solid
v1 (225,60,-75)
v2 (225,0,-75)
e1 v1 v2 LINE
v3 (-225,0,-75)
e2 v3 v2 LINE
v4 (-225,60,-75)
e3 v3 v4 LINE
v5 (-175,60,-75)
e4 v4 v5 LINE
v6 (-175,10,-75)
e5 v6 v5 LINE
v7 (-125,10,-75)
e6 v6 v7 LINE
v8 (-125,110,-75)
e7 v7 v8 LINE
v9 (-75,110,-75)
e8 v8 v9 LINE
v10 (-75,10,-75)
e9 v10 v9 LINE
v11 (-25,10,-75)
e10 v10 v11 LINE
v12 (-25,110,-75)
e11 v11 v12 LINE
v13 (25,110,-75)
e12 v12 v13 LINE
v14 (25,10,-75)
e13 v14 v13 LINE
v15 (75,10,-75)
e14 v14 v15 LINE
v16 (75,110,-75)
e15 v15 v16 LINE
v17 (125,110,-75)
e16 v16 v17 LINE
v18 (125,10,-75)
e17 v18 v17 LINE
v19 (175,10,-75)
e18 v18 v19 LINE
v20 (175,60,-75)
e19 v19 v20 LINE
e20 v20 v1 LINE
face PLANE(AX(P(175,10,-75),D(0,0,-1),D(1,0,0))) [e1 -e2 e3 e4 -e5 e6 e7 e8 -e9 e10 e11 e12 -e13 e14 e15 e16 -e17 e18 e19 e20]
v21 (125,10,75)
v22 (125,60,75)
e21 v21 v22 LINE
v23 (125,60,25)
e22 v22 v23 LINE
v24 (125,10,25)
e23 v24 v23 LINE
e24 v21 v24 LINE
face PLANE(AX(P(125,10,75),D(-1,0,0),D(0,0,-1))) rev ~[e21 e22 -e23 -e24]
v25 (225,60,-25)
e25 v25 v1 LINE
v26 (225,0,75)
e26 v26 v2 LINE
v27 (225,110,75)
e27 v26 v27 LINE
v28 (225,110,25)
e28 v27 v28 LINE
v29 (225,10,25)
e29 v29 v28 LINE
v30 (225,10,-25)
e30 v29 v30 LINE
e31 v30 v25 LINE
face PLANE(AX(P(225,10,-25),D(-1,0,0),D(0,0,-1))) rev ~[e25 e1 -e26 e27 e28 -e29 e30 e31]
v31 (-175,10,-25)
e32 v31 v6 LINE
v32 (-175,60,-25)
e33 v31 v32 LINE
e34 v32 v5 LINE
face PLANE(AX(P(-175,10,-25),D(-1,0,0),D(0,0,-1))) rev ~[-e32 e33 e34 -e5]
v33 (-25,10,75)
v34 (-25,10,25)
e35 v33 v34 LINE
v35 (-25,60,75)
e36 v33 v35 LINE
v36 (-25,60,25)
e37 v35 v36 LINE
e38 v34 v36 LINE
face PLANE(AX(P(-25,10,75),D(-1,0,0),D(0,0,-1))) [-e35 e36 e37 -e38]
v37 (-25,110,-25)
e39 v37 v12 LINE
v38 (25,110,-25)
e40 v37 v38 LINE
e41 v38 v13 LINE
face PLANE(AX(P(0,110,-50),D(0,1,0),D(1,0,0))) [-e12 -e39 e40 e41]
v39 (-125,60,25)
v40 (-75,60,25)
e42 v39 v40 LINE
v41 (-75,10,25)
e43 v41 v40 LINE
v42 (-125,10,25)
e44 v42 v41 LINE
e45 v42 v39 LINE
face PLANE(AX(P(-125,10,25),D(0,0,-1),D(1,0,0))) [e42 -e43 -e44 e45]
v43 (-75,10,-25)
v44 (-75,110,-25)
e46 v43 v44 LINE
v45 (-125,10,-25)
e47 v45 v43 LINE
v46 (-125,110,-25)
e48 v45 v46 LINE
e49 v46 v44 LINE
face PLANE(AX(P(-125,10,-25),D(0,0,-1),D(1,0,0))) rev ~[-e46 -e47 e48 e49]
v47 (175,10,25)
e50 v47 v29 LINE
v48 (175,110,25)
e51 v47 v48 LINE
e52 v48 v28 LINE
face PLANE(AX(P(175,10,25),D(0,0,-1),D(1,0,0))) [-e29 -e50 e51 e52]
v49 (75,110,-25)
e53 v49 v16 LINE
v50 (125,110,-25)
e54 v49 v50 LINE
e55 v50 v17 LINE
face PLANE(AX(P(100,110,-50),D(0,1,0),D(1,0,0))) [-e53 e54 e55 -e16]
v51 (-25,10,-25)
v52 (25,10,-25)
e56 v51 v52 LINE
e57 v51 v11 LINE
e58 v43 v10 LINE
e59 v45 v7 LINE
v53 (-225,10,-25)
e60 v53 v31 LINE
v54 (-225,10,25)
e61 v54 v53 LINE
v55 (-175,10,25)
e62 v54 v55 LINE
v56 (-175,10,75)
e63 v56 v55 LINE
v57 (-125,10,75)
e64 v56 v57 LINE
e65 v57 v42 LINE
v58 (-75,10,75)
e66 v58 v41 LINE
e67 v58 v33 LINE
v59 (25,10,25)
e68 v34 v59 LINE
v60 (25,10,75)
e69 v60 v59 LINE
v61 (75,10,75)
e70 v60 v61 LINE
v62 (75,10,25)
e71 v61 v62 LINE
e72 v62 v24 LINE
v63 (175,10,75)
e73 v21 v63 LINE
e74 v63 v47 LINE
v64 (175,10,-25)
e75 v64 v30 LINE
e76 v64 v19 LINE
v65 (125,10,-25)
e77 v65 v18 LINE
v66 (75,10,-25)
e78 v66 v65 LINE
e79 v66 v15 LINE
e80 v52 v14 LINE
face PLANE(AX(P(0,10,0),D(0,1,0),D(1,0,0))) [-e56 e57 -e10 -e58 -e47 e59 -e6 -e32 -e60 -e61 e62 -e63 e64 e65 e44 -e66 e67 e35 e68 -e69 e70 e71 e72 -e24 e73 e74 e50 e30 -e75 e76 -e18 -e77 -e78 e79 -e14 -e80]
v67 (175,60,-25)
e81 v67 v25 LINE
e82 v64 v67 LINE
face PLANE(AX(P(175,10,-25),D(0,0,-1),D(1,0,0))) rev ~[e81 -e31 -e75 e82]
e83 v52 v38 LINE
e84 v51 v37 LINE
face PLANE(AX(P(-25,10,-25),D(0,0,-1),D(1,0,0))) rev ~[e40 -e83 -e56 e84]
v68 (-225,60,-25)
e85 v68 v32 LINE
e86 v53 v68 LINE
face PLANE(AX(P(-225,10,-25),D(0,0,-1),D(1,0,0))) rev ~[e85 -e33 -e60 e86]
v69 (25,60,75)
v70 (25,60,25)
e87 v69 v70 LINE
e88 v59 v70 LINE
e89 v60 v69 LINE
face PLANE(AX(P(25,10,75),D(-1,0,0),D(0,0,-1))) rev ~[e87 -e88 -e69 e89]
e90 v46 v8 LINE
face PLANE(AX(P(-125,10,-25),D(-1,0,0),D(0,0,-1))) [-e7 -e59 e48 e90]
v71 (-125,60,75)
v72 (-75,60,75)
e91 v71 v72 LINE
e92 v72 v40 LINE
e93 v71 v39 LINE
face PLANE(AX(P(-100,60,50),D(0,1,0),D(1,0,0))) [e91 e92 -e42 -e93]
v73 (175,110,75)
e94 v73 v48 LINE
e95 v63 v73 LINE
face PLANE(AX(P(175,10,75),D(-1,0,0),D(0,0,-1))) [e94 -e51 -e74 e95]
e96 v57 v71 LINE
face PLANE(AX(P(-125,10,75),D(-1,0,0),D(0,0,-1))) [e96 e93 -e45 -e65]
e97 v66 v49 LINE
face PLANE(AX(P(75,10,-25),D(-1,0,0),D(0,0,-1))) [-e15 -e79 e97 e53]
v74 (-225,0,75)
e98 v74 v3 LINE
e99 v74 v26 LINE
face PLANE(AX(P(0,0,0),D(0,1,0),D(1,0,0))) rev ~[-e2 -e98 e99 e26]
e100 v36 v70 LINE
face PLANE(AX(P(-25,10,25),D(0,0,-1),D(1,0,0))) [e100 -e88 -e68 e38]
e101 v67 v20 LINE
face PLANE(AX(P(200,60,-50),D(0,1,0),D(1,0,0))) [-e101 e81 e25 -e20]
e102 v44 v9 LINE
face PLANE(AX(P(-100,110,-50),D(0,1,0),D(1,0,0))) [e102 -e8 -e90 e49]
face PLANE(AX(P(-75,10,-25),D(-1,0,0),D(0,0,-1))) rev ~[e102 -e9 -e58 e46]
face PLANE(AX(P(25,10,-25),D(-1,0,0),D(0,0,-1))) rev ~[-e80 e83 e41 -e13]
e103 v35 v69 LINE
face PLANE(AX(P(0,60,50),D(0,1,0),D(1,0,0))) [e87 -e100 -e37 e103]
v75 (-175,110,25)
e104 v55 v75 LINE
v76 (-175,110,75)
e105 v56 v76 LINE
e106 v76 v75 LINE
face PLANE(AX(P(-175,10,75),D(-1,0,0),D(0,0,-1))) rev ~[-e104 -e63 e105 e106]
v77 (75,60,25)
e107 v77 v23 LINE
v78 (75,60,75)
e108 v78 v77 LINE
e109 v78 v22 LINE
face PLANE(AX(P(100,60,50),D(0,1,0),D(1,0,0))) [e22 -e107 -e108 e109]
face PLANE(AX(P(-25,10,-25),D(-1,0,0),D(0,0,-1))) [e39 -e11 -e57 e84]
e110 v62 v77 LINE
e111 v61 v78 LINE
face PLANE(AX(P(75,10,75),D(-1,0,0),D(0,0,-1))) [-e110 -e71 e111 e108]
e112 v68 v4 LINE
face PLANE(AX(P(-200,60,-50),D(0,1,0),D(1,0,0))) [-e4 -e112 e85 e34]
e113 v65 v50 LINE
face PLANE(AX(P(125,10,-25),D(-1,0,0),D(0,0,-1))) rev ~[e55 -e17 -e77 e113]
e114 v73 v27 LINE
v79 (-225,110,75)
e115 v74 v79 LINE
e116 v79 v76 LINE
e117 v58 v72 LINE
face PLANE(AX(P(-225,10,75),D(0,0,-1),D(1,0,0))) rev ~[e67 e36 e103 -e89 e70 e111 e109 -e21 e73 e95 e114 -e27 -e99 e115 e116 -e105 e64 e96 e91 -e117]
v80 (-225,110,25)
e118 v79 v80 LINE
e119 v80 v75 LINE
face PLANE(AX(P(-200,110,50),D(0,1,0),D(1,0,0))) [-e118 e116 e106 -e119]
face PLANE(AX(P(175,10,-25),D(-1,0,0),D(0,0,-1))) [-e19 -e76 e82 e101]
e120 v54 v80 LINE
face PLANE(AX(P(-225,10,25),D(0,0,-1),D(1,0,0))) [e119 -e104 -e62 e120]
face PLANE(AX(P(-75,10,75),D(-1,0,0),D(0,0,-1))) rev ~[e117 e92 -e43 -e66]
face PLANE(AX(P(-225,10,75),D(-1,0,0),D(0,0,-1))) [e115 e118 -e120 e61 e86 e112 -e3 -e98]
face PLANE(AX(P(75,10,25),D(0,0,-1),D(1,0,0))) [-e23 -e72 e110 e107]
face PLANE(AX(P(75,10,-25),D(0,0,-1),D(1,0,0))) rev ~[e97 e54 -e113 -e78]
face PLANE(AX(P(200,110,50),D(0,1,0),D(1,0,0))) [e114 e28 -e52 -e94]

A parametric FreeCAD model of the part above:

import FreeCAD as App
import Part
import Sketcher

doc = App.newDocument("Part")
body = doc.addObject("PartDesign::Body", "Body")

# Sketch on XZ plane
sketch1 = body.newObject("Sketcher::SketchObject", "Sketch")
sketch1.AttachmentSupport = (doc.getObject("XZ_Plane"), [""])
sketch1.MapMode = "FlatFace"
sketch1.addGeometry([
    Part.LineSegment(App.Vector(-225, -75, 0), App.Vector(-225, 75, 0)),
    Part.LineSegment(App.Vector(-225, 75, 0), App.Vector(225, 75, 0)),
    Part.LineSegment(App.Vector(225, 75, 0), App.Vector(225, -75, 0)),
    Part.LineSegment(App.Vector(225, -75, 0), App.Vector(-225, -75, 0)),
], False)
sketch1.addConstraint([
    Sketcher.Constraint("Coincident", 0, 2, 1, 1),
    Sketcher.Constraint("Coincident", 1, 2, 2, 1),
    Sketcher.Constraint("Coincident", 2, 2, 3, 1),
    Sketcher.Constraint("Coincident", 3, 2, 0, 1),
    Sketcher.Constraint("Vertical", 0),
    Sketcher.Constraint("Horizontal", 1),
    Sketcher.Constraint("Vertical", 2),
    Sketcher.Constraint("Horizontal", 3),
    Sketcher.Constraint("Symmetric", 0, 2, 2, 2, -1, 1),
    Sketcher.Constraint("DistanceX", 1, 1, 1, 2, 450.0),
    Sketcher.Constraint("DistanceY", 0, 1, 0, 2, 150.0),
])
pad1 = body.newObject("PartDesign::Pad", "Pad")
pad1.Profile = sketch1
pad1.Length = 10
pad1.Reversed = True

# Sketch on XZ plane
sketch2 = body.newObject("Sketcher::SketchObject", "Sketch001")
sketch2.AttachmentSupport = (doc.getObject("XZ_Plane"), [""])
sketch2.MapMode = "FlatFace"
sketch2.AttachmentOffset = App.Placement(App.Vector(0, 0, -10), App.Rotation())
sketch2.addGeometry([
    Part.LineSegment(App.Vector(-25, 25, 0), App.Vector(-25, 75, 0)),  # 0
    Part.LineSegment(App.Vector(-25, 75, 0), App.Vector(25, 75, 0)),  # 1
    Part.LineSegment(App.Vector(25, 75, 0), App.Vector(25, 25, 0)),  # 2
    Part.LineSegment(App.Vector(25, 25, 0), App.Vector(-25, 25, 0)),  # 3
    Part.LineSegment(App.Vector(175, -75, 0), App.Vector(175, -25, 0)),  # 4
    Part.LineSegment(App.Vector(175, -25, 0), App.Vector(225, -25, 0)),  # 5
    Part.LineSegment(App.Vector(225, -25, 0), App.Vector(225, -75, 0)),  # 6
    Part.LineSegment(App.Vector(225, -75, 0), App.Vector(175, -75, 0)),  # 7
    Part.LineSegment(App.Vector(75, 25, 0), App.Vector(75, 75, 0)),  # 8
    Part.LineSegment(App.Vector(75, 75, 0), App.Vector(125, 75, 0)),  # 9
    Part.LineSegment(App.Vector(125, 75, 0), App.Vector(125, 25, 0)),  # 10
    Part.LineSegment(App.Vector(125, 25, 0), App.Vector(75, 25, 0)),  # 11
    Part.LineSegment(App.Vector(-225, -75, 0), App.Vector(-225, -25, 0)),  # 12
    Part.LineSegment(App.Vector(-225, -25, 0), App.Vector(-175, -25, 0)),  # 13
    Part.LineSegment(App.Vector(-175, -25, 0), App.Vector(-175, -75, 0)),  # 14
    Part.LineSegment(App.Vector(-175, -75, 0), App.Vector(-225, -75, 0)),  # 15
    Part.LineSegment(App.Vector(-125, 25, 0), App.Vector(-125, 75, 0)),  # 16
    Part.LineSegment(App.Vector(-125, 75, 0), App.Vector(-75, 75, 0)),  # 17
    Part.LineSegment(App.Vector(-75, 75, 0), App.Vector(-75, 25, 0)),  # 18
    Part.LineSegment(App.Vector(-75, 25, 0), App.Vector(-125, 25, 0)),  # 19
], False)
sketch2.addConstraint([
    Sketcher.Constraint("Coincident", 0, 2, 1, 1),
    Sketcher.Constraint("Coincident", 1, 2, 2, 1),
    Sketcher.Constraint("Coincident", 2, 2, 3, 1),
    Sketcher.Constraint("Coincident", 3, 2, 0, 1),
    Sketcher.Constraint("Coincident", 4, 2, 5, 1),
    Sketcher.Constraint("Coincident", 5, 2, 6, 1),
    Sketcher.Constraint("Coincident", 6, 2, 7, 1),
    Sketcher.Constraint("Coincident", 7, 2, 4, 1),
    Sketcher.Constraint("Coincident", 8, 2, 9, 1),
    Sketcher.Constraint("Coincident", 9, 2, 10, 1),
    Sketcher.Constraint("Coincident", 10, 2, 11, 1),
    Sketcher.Constraint("Coincident", 11, 2, 8, 1),
    Sketcher.Constraint("Coincident", 12, 2, 13, 1),
    Sketcher.Constraint("Coincident", 13, 2, 14, 1),
    Sketcher.Constraint("Coincident", 14, 2, 15, 1),
    Sketcher.Constraint("Coincident", 15, 2, 12, 1),
    Sketcher.Constraint("Coincident", 16, 2, 17, 1),
    Sketcher.Constraint("Coincident", 17, 2, 18, 1),
    Sketcher.Constraint("Coincident", 18, 2, 19, 1),
    Sketcher.Constraint("Coincident", 19, 2, 16, 1),
    Sketcher.Constraint("Vertical", 0),
    Sketcher.Constraint("Horizontal", 1),
    Sketcher.Constraint("Vertical", 2),
    Sketcher.Constraint("Horizontal", 3),
    Sketcher.Constraint("Vertical", 4),
    Sketcher.Constraint("Horizontal", 5),
    Sketcher.Constraint("Vertical", 6),
    Sketcher.Constraint("Horizontal", 7),
    Sketcher.Constraint("Vertical", 8),
    Sketcher.Constraint("Horizontal", 9),
    Sketcher.Constraint("Vertical", 10),
    Sketcher.Constraint("Horizontal", 11),
    Sketcher.Constraint("Vertical", 12),
    Sketcher.Constraint("Horizontal", 13),
    Sketcher.Constraint("Vertical", 14),
    Sketcher.Constraint("Horizontal", 15),
    Sketcher.Constraint("Vertical", 16),
    Sketcher.Constraint("Horizontal", 17),
    Sketcher.Constraint("Vertical", 18),
    Sketcher.Constraint("Horizontal", 19),
    Sketcher.Constraint("Symmetric", 5, 2, 12, 2, -2),
    Sketcher.Constraint("Symmetric", 7, 2, 14, 2, -2),
    Sketcher.Constraint("Symmetric", 9, 2, 16, 2, -2),
    Sketcher.Constraint("Symmetric", 11, 2, 18, 2, -2),
    Sketcher.Constraint("Horizontal", 1, 2, 8, 2),
    Sketcher.Constraint("Horizontal", 3, 2, 10, 2),
    Sketcher.Constraint("Equal", 3, 5),
    Sketcher.Constraint("Equal", 7, 9),
    Sketcher.Constraint("Equal", 19, 0),
    Sketcher.Constraint("Equal", 2, 4),
    Sketcher.Constraint("DistanceX", 1, 1, 1, 2, 50.0),
    Sketcher.Constraint("DistanceX", 0, 2, -1, 1, 25.0),
    Sketcher.Constraint("DistanceY", -1, 1, 0, 2, 75.0),
    Sketcher.Constraint("DistanceX", -1, 1, 4, 2, 175.0),
    Sketcher.Constraint("DistanceY", 4, 2, -1, 1, 25.0),
    Sketcher.Constraint("DistanceX", -1, 1, 8, 2, 75.0),
])
pad2 = body.newObject("PartDesign::Pad", "Pad001")
pad2.Profile = sketch2
pad2.Length = 50
pad2.Reversed = True

# Sketch on XZ plane
sketch3 = body.newObject("Sketcher::SketchObject", "Sketch002")
sketch3.AttachmentSupport = (doc.getObject("XZ_Plane"), [""])
sketch3.MapMode = "FlatFace"
sketch3.AttachmentOffset = App.Placement(App.Vector(0, 0, -10), App.Rotation())
sketch3.addGeometry([
    Part.LineSegment(App.Vector(-225, 25, 0), App.Vector(-225, 75, 0)),  # 0
    Part.LineSegment(App.Vector(-225, 75, 0), App.Vector(-175, 75, 0)),  # 1
    Part.LineSegment(App.Vector(-175, 75, 0), App.Vector(-175, 25, 0)),  # 2
    Part.LineSegment(App.Vector(-175, 25, 0), App.Vector(-225, 25, 0)),  # 3
    Part.LineSegment(App.Vector(175, 25, 0), App.Vector(175, 75, 0)),  # 4
    Part.LineSegment(App.Vector(175, 75, 0), App.Vector(225, 75, 0)),  # 5
    Part.LineSegment(App.Vector(225, 75, 0), App.Vector(225, 25, 0)),  # 6
    Part.LineSegment(App.Vector(225, 25, 0), App.Vector(175, 25, 0)),  # 7
    Part.LineSegment(App.Vector(-125, -75, 0), App.Vector(-125, -25, 0)),  # 8
    Part.LineSegment(App.Vector(-125, -25, 0), App.Vector(-75, -25, 0)),  # 9
    Part.LineSegment(App.Vector(-75, -25, 0), App.Vector(-75, -75, 0)),  # 10
    Part.LineSegment(App.Vector(-75, -75, 0), App.Vector(-125, -75, 0)),  # 11
    Part.LineSegment(App.Vector(-25, -75, 0), App.Vector(-25, -25, 0)),  # 12
    Part.LineSegment(App.Vector(-25, -25, 0), App.Vector(25, -25, 0)),  # 13
    Part.LineSegment(App.Vector(25, -25, 0), App.Vector(25, -75, 0)),  # 14
    Part.LineSegment(App.Vector(25, -75, 0), App.Vector(-25, -75, 0)),  # 15
    Part.LineSegment(App.Vector(75, -75, 0), App.Vector(75, -25, 0)),  # 16
    Part.LineSegment(App.Vector(75, -25, 0), App.Vector(125, -25, 0)),  # 17
    Part.LineSegment(App.Vector(125, -25, 0), App.Vector(125, -75, 0)),  # 18
    Part.LineSegment(App.Vector(125, -75, 0), App.Vector(75, -75, 0)),  # 19
], False)
sketch3.addConstraint([
    Sketcher.Constraint("Coincident", 0, 2, 1, 1),
    Sketcher.Constraint("Coincident", 1, 2, 2, 1),
    Sketcher.Constraint("Coincident", 2, 2, 3, 1),
    Sketcher.Constraint("Coincident", 3, 2, 0, 1),
    Sketcher.Constraint("Coincident", 4, 2, 5, 1),
    Sketcher.Constraint("Coincident", 5, 2, 6, 1),
    Sketcher.Constraint("Coincident", 6, 2, 7, 1),
    Sketcher.Constraint("Coincident", 7, 2, 4, 1),
    Sketcher.Constraint("Coincident", 8, 2, 9, 1),
    Sketcher.Constraint("Coincident", 9, 2, 10, 1),
    Sketcher.Constraint("Coincident", 10, 2, 11, 1),
    Sketcher.Constraint("Coincident", 11, 2, 8, 1),
    Sketcher.Constraint("Coincident", 12, 2, 13, 1),
    Sketcher.Constraint("Coincident", 13, 2, 14, 1),
    Sketcher.Constraint("Coincident", 14, 2, 15, 1),
    Sketcher.Constraint("Coincident", 15, 2, 12, 1),
    Sketcher.Constraint("Coincident", 16, 2, 17, 1),
    Sketcher.Constraint("Coincident", 17, 2, 18, 1),
    Sketcher.Constraint("Coincident", 18, 2, 19, 1),
    Sketcher.Constraint("Coincident", 19, 2, 16, 1),
    Sketcher.Constraint("Vertical", 0),
    Sketcher.Constraint("Horizontal", 1),
    Sketcher.Constraint("Vertical", 2),
    Sketcher.Constraint("Horizontal", 3),
    Sketcher.Constraint("Vertical", 4),
    Sketcher.Constraint("Horizontal", 5),
    Sketcher.Constraint("Vertical", 6),
    Sketcher.Constraint("Horizontal", 7),
    Sketcher.Constraint("Vertical", 8),
    Sketcher.Constraint("Horizontal", 9),
    Sketcher.Constraint("Vertical", 10),
    Sketcher.Constraint("Horizontal", 11),
    Sketcher.Constraint("Vertical", 12),
    Sketcher.Constraint("Horizontal", 13),
    Sketcher.Constraint("Vertical", 14),
    Sketcher.Constraint("Horizontal", 15),
    Sketcher.Constraint("Vertical", 16),
    Sketcher.Constraint("Horizontal", 17),
    Sketcher.Constraint("Vertical", 18),
    Sketcher.Constraint("Horizontal", 19),
    Sketcher.Constraint("Symmetric", 1, 2, 4, 2, -2),
    Sketcher.Constraint("Symmetric", 3, 2, 6, 2, -2),
    Sketcher.Constraint("Symmetric", 9, 2, 16, 2, -2),
    Sketcher.Constraint("Symmetric", 11, 2, 18, 2, -2),
    Sketcher.Constraint("Horizontal", 9, 2, 12, 2),
    Sketcher.Constraint("Horizontal", 11, 2, 14, 2),
    Sketcher.Constraint("Equal", 7, 9),
    Sketcher.Constraint("Equal", 11, 13),
    Sketcher.Constraint("Equal", 19, 0),
    Sketcher.Constraint("Equal", 6, 8),
    Sketcher.Constraint("DistanceX", 1, 1, 1, 2, 50.0),
    Sketcher.Constraint("DistanceX", 0, 2, -1, 1, 225.0),
    Sketcher.Constraint("DistanceY", -1, 1, 0, 2, 75.0),
    Sketcher.Constraint("DistanceX", 8, 2, -1, 1, 125.0),
    Sketcher.Constraint("DistanceY", 8, 2, -1, 1, 25.0),
    Sketcher.Constraint("DistanceX", 12, 2, -1, 1, 25.0),
])
pad3 = body.newObject("PartDesign::Pad", "Pad002")
pad3.Profile = sketch3
pad3.Length = 100
pad3.Reversed = True

doc.recompute()
